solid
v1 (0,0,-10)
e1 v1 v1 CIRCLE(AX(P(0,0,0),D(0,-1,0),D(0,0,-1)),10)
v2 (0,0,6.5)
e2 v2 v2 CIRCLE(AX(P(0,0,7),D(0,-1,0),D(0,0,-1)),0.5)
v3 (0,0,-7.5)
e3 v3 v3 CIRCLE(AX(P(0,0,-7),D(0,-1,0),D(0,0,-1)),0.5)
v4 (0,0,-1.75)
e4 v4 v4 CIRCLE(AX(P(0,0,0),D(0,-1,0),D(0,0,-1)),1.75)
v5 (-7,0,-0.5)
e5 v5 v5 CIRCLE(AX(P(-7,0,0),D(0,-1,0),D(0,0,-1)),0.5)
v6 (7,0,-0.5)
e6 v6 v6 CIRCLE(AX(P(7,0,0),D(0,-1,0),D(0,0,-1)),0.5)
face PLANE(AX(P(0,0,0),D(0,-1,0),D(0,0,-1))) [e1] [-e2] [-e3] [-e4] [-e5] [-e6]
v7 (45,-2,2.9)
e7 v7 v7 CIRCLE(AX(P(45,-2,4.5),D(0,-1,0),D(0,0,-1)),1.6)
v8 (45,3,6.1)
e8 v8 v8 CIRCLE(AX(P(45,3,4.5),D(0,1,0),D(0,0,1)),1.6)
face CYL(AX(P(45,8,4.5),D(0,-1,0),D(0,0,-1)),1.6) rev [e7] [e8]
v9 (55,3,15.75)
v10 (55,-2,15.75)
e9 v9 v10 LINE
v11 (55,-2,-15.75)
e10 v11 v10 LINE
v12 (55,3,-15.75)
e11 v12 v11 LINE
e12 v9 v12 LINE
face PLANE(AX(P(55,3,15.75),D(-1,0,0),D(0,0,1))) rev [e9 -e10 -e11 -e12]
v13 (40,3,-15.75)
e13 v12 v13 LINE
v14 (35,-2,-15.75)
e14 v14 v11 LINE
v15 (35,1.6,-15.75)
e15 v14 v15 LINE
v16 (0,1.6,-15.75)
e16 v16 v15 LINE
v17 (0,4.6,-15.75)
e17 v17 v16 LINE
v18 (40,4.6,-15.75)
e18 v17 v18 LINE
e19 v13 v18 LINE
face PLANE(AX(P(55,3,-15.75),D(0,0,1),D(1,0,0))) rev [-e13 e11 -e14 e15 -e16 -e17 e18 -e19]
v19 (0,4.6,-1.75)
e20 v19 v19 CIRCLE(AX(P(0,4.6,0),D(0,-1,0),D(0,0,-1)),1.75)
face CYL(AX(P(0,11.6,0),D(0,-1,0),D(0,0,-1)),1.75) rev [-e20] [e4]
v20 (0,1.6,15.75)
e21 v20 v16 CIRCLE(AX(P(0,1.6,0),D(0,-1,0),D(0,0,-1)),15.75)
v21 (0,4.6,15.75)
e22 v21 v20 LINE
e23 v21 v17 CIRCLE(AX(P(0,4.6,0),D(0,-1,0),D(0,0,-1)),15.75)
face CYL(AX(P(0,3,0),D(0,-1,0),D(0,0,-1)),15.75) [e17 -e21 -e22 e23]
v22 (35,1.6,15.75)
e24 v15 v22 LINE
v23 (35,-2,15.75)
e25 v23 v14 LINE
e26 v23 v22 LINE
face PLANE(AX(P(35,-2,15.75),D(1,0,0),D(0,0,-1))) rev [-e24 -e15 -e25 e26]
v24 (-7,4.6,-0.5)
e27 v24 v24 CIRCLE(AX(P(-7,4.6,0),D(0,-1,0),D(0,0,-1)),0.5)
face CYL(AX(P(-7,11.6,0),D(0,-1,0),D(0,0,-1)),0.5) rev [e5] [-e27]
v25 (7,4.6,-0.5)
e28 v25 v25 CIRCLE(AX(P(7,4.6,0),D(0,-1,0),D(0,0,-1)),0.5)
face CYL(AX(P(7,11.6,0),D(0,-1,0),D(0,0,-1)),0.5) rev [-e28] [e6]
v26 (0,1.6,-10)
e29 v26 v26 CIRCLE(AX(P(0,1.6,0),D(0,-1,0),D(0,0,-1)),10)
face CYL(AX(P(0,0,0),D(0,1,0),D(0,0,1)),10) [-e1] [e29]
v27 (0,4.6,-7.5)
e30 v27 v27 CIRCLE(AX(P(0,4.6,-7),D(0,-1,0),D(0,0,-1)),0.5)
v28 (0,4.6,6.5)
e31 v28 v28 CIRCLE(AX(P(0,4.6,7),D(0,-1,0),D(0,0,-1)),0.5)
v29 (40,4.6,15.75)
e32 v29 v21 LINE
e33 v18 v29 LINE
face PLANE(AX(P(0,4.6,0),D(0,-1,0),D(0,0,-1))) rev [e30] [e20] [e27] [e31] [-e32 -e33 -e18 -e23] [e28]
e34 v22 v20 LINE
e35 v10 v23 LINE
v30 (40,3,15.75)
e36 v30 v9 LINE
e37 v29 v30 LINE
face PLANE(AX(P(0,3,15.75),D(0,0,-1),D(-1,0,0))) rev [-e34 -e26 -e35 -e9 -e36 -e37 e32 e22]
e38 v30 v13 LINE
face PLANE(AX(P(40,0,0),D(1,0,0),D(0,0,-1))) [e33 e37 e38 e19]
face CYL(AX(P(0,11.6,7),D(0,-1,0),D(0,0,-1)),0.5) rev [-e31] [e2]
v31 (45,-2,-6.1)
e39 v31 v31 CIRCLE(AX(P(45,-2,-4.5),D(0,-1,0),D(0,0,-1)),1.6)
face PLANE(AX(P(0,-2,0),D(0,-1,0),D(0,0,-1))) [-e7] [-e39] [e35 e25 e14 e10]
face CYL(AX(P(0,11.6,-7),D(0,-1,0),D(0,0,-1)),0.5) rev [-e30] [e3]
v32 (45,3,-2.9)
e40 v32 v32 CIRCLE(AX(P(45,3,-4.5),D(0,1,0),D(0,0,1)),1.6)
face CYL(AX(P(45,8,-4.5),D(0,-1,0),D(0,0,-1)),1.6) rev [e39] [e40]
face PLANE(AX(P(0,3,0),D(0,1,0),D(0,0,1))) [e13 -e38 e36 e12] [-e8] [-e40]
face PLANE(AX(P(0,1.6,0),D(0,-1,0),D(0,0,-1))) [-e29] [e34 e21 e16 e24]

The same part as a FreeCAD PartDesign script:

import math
import FreeCAD as App
import Part
import Sketcher
from FreeCAD import Vector
Q = App.Units.Quantity

doc = App.newDocument("Part")
params = doc.addObject("Spreadsheet::Sheet", "Params")
for row, (alias, value) in enumerate([
    ("sketch1_width", "55 mm"),
    ("sketch1_radius", "15.75 mm"),
    ("pad1_length", "3 mm"),
    ("sketch2_width", "20 mm"),
    ("sketch2_height", "31.5 mm"),
    ("pad2_length", "2 mm"),
    ("sketch3_diameter", "1 mm"),
    ("pocket1_length", "10 mm"),
    ("sketch4_diameter", "3.2 mm"),
    ("pocket2_length", "10 mm"),
    ("sketch5_diameter", "3.5 mm"),
    ("pocket3_length", "17 mm"),
    ("sketch6_width", "35 mm"),
    ("sketch6_radius", "15.75 mm"),
    ("pocket4_length", "1.6 mm"),
    ("sketch7_width", "35 mm"),
    ("sketch7_radius", "15.75 mm"),
    ("pad3_length", "3 mm"),
    ("sketch8_width", "1.6 mm"),
    ("sketch8_height", "31.5 mm"),
    ("pad4_length", "3 mm"),
    ("sketch9_diameter", "1 mm"),
    ("sketch9_diameter2", "3.5 mm"),
    ("pocket5_length", "10 mm"),
    ("sketch10_diameter", "20 mm"),
    ("pad5_length", "1.6 mm"),
    ("sketch11_width", "1.6 mm"),
    ("sketch11_height", "31.5 mm"),
    ("pad6_length", "2 mm"),
    ("sketch12_diameter", "1 mm"),
    ("sketch12_diameter2", "3.5 mm"),
    ("pocket6_length", "12 mm"),
], start=1):
    params.set(f"A{row}", alias)
    params.set(f"B{row}", "=" + value)
    params.setAlias(f"B{row}", alias)

body = doc.addObject("PartDesign::Body", "Body")

# Sketch on XZ plane
sketch1 = body.newObject("Sketcher::SketchObject", "Sketch")
sketch1.AttachmentSupport = (doc.getObject("XZ_Plane"), [""])
sketch1.MapMode = "FlatFace"
sketch1.addGeometry([
    Part.LineSegment(Vector(0, 15.75, 0), Vector(55, 15.75, 0)),
    Part.LineSegment(Vector(55, 15.75, 0), Vector(55, -15.75, 0)),
    Part.LineSegment(Vector(55, -15.75, 0), Vector(0, -15.75, 0)),
    Part.ArcOfCircle(Part.Circle(Vector(0, 0, 0), Vector(0, 0, 1), 15.75), math.radians(90), math.radians(270)),
], False)
sketch1.addConstraint([
    Sketcher.Constraint("Coincident", 0, 2, 1, 1),
    Sketcher.Constraint("Coincident", 1, 2, 2, 1),
    Sketcher.Constraint("Tangent", 2, 2, 3, 2),
    Sketcher.Constraint("Tangent", 3, 1, 0, 1),
    Sketcher.Constraint("Horizontal", 0),
    Sketcher.Constraint("Vertical", 1),
    Sketcher.Constraint("Horizontal", 2),
    Sketcher.Constraint("Coincident", 3, 3, -1, 1),
    Sketcher.Constraint("DistanceX", 0, 1, 0, 2, Q("55 mm")),
    Sketcher.Constraint("Radius", 3, Q("15.75 mm")),
])
sketch1.setExpression("Constraints[8]", "Params.sketch1_width")
sketch1.setExpression("Constraints[9]", "Params.sketch1_radius")
pad1 = body.newObject("PartDesign::Pad", "Pad")
pad1.Profile = sketch1
pad1.setExpression("Length", "Params.pad1_length")
pad1.Reversed = True

# Sketch on XZ plane
sketch2 = body.newObject("Sketcher::SketchObject", "Sketch001")
sketch2.AttachmentSupport = (doc.getObject("XZ_Plane"), [""])
sketch2.MapMode = "FlatFace"
sketch2.addGeometry([
    Part.LineSegment(Vector(35, 15.75, 0), Vector(35, -15.75, 0)),
    Part.LineSegment(Vector(35, -15.75, 0), Vector(55, -15.75, 0)),
    Part.LineSegment(Vector(55, -15.75, 0), Vector(55, 15.75, 0)),
    Part.LineSegment(Vector(55, 15.75, 0), Vector(35, 15.75, 0)),
], False)
sketch2.addConstraint([
    Sketcher.Constraint("Coincident", 0, 2, 1, 1),
    Sketcher.Constraint("Coincident", 1, 2, 2, 1),
    Sketcher.Constraint("Coincident", 2, 2, 3, 1),
    Sketcher.Constraint("Coincident", 3, 2, 0, 1),
    Sketcher.Constraint("Vertical", 0),
    Sketcher.Constraint("Horizontal", 1),
    Sketcher.Constraint("Vertical", 2),
    Sketcher.Constraint("Horizontal", 3),
    Sketcher.Constraint("DistanceX", 1, 1, 1, 2, Q("20 mm")),
    Sketcher.Constraint("DistanceY", 0, 2, 0, 1, Q("31.5 mm")),
    Sketcher.Constraint("DistanceX", -1, 1, 0, 2, Q("35 mm")),
    Sketcher.Constraint("DistanceY", 0, 2, -1, 1, Q("15.75 mm")),
])
sketch2.setExpression("Constraints[8]", "Params.sketch2_width")
sketch2.setExpression("Constraints[9]", "Params.sketch2_height")
pad2 = body.newObject("PartDesign::Pad", "Pad001")
pad2.Profile = sketch2
pad2.setExpression("Length", "Params.pad2_length")

# Sketch on XZ plane
sketch3 = body.newObject("Sketcher::SketchObject", "Sketch002")
sketch3.AttachmentSupport = (doc.getObject("XZ_Plane"), [""])
sketch3.MapMode = "FlatFace"
sketch3.addGeometry([
    Part.Circle(Vector(0, 7, 0), Vector(0, 0, 1), 0.5),
    Part.Circle(Vector(7, 0, 0), Vector(0, 0, 1), 0.5),
    Part.Circle(Vector(0, -7, 0), Vector(0, 0, 1), 0.5),
    Part.Circle(Vector(-7, 0, 0), Vector(0, 0, 1), 0.5),
], False)
sketch3.addConstraint([
    Sketcher.Constraint("Equal", 0, 1),
    Sketcher.Constraint("Equal", 1, 2),
    Sketcher.Constraint("Equal", 2, 3),
    Sketcher.Constraint("Symmetric", 0, 3, 2, 3, -1, 1),
    Sketcher.Constraint("Symmetric", 1, 3, 3, 3, -1, 1),
    Sketcher.Constraint("PointOnObject", 0, 3, -2),
    Sketcher.Constraint("PointOnObject", 1, 3, -1),
    Sketcher.Constraint("Diameter", 0, Q("1 mm")),
    Sketcher.Constraint("DistanceY", -1, 1, 0, 3, Q("7 mm")),
    Sketcher.Constraint("DistanceX", -1, 1, 1, 3, Q("7 mm")),
])
sketch3.setExpression("Constraints[7]", "Params.sketch3_diameter")
pocket1 = body.newObject("PartDesign::Pocket", "Pocket")
pocket1.Profile = sketch3
pocket1.setExpression("Length", "Params.pocket1_length")

# Sketch on XZ plane
sketch4 = body.newObject("Sketcher::SketchObject", "Sketch003")
sketch4.AttachmentSupport = (doc.getObject("XZ_Plane"), [""])
sketch4.MapMode = "FlatFace"
sketch4.AttachmentOffset = App.Placement(Vector(0, 0, 2), App.Rotation())
sketch4.addGeometry([
    Part.Circle(Vector(45, -4.5, 0), Vector(0, 0, 1), 1.6),
    Part.Circle(Vector(45, 4.5, 0), Vector(0, 0, 1), 1.6),
], False)
sketch4.addConstraint([
    Sketcher.Constraint("Equal", 0, 1),
    Sketcher.Constraint("Symmetric", 0, 3, 1, 3, -1),
    Sketcher.Constraint("Diameter", 0, Q("3.2 mm")),
    Sketcher.Constraint("DistanceX", -1, 1, 0, 3, Q("45 mm")),
    Sketcher.Constraint("DistanceY", 0, 3, 1, 3, Q("9 mm")),
])
sketch4.setExpression("Constraints[2]", "Params.sketch4_diameter")
pocket2 = body.newObject("PartDesign::Pocket", "Pocket001")
pocket2.Profile = sketch4
pocket2.setExpression("Length", "Params.pocket2_length")

# Sketch on XZ plane
sketch5 = body.newObject("Sketcher::SketchObject", "Sketch004")
sketch5.AttachmentSupport = (doc.getObject("XZ_Plane"), [""])
sketch5.MapMode = "FlatFace"
sketch5.addGeometry(Part.Circle(Vector(0, 0, 0), Vector(0, 0, 1), 1.75), False)
sketch5.addConstraint([
    Sketcher.Constraint("Coincident", 0, 3, -1, 1),
    Sketcher.Constraint("Diameter", 0, Q("3.5 mm")),
])
sketch5.setExpression("Constraints[1]", "Params.sketch5_diameter")
pocket3 = body.newObject("PartDesign::Pocket", "Pocket002")
pocket3.Profile = sketch5
pocket3.setExpression("Length", "Params.pocket3_length")

# Sketch on XZ plane
sketch6 = body.newObject("Sketcher::SketchObject", "Sketch005")
sketch6.AttachmentSupport = (doc.getObject("XZ_Plane"), [""])
sketch6.MapMode = "FlatFace"
sketch6.addGeometry([
    Part.LineSegment(Vector(35, -15.75, 0), Vector(35, 15.75, 0)),
    Part.LineSegment(Vector(35, 15.75, 0), Vector(0, 15.75, 0)),
    Part.ArcOfCircle(Part.Circle(Vector(0, 0, 0), Vector(0, 0, 1), 15.75), math.radians(90), math.radians(270)),
    Part.LineSegment(Vector(0, -15.75, 0), Vector(35, -15.75, 0)),
], False)
sketch6.addConstraint([
    Sketcher.Constraint("Coincident", 0, 2, 1, 1),
    Sketcher.Constraint("Tangent", 1, 2, 2, 1),
    Sketcher.Constraint("Tangent", 2, 2, 3, 1),
    Sketcher.Constraint("Coincident", 3, 2, 0, 1),
    Sketcher.Constraint("Vertical", 0),
    Sketcher.Constraint("Horizontal", 1),
    Sketcher.Constraint("Horizontal", 3),
    Sketcher.Constraint("Coincident", 2, 3, -1, 1),
    Sketcher.Constraint("DistanceX", 1, 2, 1, 1, Q("35 mm")),
    Sketcher.Constraint("Radius", 2, Q("15.75 mm")),
])
sketch6.setExpression("Constraints[8]", "Params.sketch6_width")
sketch6.setExpression("Constraints[9]", "Params.sketch6_radius")
pocket4 = body.newObject("PartDesign::Pocket", "Pocket003")
pocket4.Profile = sketch6
pocket4.setExpression("Length", "Params.pocket4_length")

# Sketch on XZ plane
sketch7 = body.newObject("Sketcher::SketchObject", "Sketch006")
sketch7.AttachmentSupport = (doc.getObject("XZ_Plane"), [""])
sketch7.MapMode = "FlatFace"
sketch7.AttachmentOffset = App.Placement(Vector(0, 0, -1.6), App.Rotation())
sketch7.addGeometry([
    Part.LineSegment(Vector(0, -15.75, 0), Vector(35, -15.75, 0)),
    Part.LineSegment(Vector(35, -15.75, 0), Vector(35, 15.75, 0)),
    Part.LineSegment(Vector(35, 15.75, 0), Vector(0, 15.75, 0)),
    Part.ArcOfCircle(Part.Circle(Vector(0, 0, 0), Vector(0, 0, 1), 15.75), math.radians(90), math.radians(270)),
], False)
sketch7.addConstraint([
    Sketcher.Constraint("Coincident", 0, 2, 1, 1),
    Sketcher.Constraint("Coincident", 1, 2, 2, 1),
    Sketcher.Constraint("Tangent", 2, 2, 3, 1),
    Sketcher.Constraint("Tangent", 3, 2, 0, 1),
    Sketcher.Constraint("Horizontal", 0),
    Sketcher.Constraint("Vertical", 1),
    Sketcher.Constraint("Horizontal", 2),
    Sketcher.Constraint("Coincident", 3, 3, -1, 1),
    Sketcher.Constraint("DistanceX", 0, 1, 0, 2, Q("35 mm")),
    Sketcher.Constraint("Radius", 3, Q("15.75 mm")),
])
sketch7.setExpression("Constraints[8]", "Params.sketch7_width")
sketch7.setExpression("Constraints[9]", "Params.sketch7_radius")
pad3 = body.newObject("PartDesign::Pad", "Pad002")
pad3.Profile = sketch7
pad3.setExpression("Length", "Params.pad3_length")
pad3.Reversed = True

# Sketch on YZ plane
sketch8 = body.newObject("Sketcher::SketchObject", "Sketch007")
sketch8.AttachmentSupport = (doc.getObject("YZ_Plane"), [""])
sketch8.MapMode = "FlatFace"
sketch8.AttachmentOffset = App.Placement(Vector(0, 0, 35), App.Rotation())
sketch8.addGeometry([
    Part.LineSegment(Vector(4.6, 15.75, 0), Vector(3, 15.75, 0)),
    Part.LineSegment(Vector(3, 15.75, 0), Vector(3, -15.75, 0)),
    Part.LineSegment(Vector(3, -15.75, 0), Vector(4.6, -15.75, 0)),
    Part.LineSegment(Vector(4.6, -15.75, 0), Vector(4.6, 15.75, 0)),
], False)
sketch8.addConstraint([
    Sketcher.Constraint("Coincident", 0, 2, 1, 1),
    Sketcher.Constraint("Coincident", 1, 2, 2, 1),
    Sketcher.Constraint("Coincident", 2, 2, 3, 1),
    Sketcher.Constraint("Coincident", 3, 2, 0, 1),
    Sketcher.Constraint("Horizontal", 0),
    Sketcher.Constraint("Vertical", 1),
    Sketcher.Constraint("Horizontal", 2),
    Sketcher.Constraint("Vertical", 3),
    Sketcher.Constraint("DistanceX", 0, 2, 0, 1, Q("1.6 mm")),
    Sketcher.Constraint("DistanceY", 1, 2, 1, 1, Q("31.5 mm")),
    Sketcher.Constraint("DistanceX", -1, 1, 0, 2, Q("3 mm")),
    Sketcher.Constraint("DistanceY", -1, 1, 0, 2, Q("15.75 mm")),
])
sketch8.setExpression("Constraints[8]", "Params.sketch8_width")
sketch8.setExpression("Constraints[9]", "Params.sketch8_height")
pad4 = body.newObject("PartDesign::Pad", "Pad003")
pad4.Profile = sketch8
pad4.setExpression("Length", "Params.pad4_length")

# Sketch on XZ plane
sketch9 = body.newObject("Sketcher::SketchObject", "Sketch008")
sketch9.AttachmentSupport = (doc.getObject("XZ_Plane"), [""])
sketch9.MapMode = "FlatFace"
sketch9.AttachmentOffset = App.Placement(Vector(0, 0, -1.6), App.Rotation())
sketch9.addGeometry([
    Part.Circle(Vector(0, 0, 0), Vector(0, 0, 1), 1.75),  # 0
    Part.Circle(Vector(0, 7, 0), Vector(0, 0, 1), 0.5),  # 1
    Part.Circle(Vector(7, 0, 0), Vector(0, 0, 1), 0.5),  # 2
    Part.Circle(Vector(0, -7, 0), Vector(0, 0, 1), 0.5),  # 3
    Part.Circle(Vector(-7, 0, 0), Vector(0, 0, 1), 0.5),  # 4
], False)
sketch9.addConstraint([
    Sketcher.Constraint("Coincident", 0, 3, -1, 1),
    Sketcher.Constraint("Equal", 1, 2),
    Sketcher.Constraint("Equal", 2, 3),
    Sketcher.Constraint("Equal", 3, 4),
    Sketcher.Constraint("Symmetric", 1, 3, 3, 3, -1, 1),
    Sketcher.Constraint("Symmetric", 2, 3, 4, 3, -1, 1),
    Sketcher.Constraint("PointOnObject", 1, 3, -2),
    Sketcher.Constraint("PointOnObject", 2, 3, -1),
    Sketcher.Constraint("Diameter", 1, Q("1 mm")),
    Sketcher.Constraint("Diameter", 0, Q("3.5 mm")),
    Sketcher.Constraint("DistanceY", -1, 1, 1, 3, Q("7 mm")),
    Sketcher.Constraint("DistanceX", -1, 1, 2, 3, Q("7 mm")),
])
sketch9.setExpression("Constraints[8]", "Params.sketch9_diameter")
sketch9.setExpression("Constraints[9]", "Params.sketch9_diameter2")
pocket5 = body.newObject("PartDesign::Pocket", "Pocket004")
pocket5.Profile = sketch9
pocket5.setExpression("Length", "Params.pocket5_length")

# Sketch on XZ plane
sketch10 = body.newObject("Sketcher::SketchObject", "Sketch009")
sketch10.AttachmentSupport = (doc.getObject("XZ_Plane"), [""])
sketch10.MapMode = "FlatFace"
sketch10.AttachmentOffset = App.Placement(Vector(0, 0, -1.6), App.Rotation())
sketch10.addGeometry(Part.Circle(Vector(0, 0, 0), Vector(0, 0, 1), 10), False)
sketch10.addConstraint([
    Sketcher.Constraint("Coincident", 0, 3, -1, 1),
    Sketcher.Constraint("Diameter", 0, Q("20 mm")),
])
sketch10.setExpression("Constraints[1]", "Params.sketch10_diameter")
pad5 = body.newObject("PartDesign::Pad", "Pad004")
pad5.Profile = sketch10
pad5.setExpression("Length", "Params.pad5_length")

# Sketch on YZ plane
sketch11 = body.newObject("Sketcher::SketchObject", "Sketch010")
sketch11.AttachmentSupport = (doc.getObject("YZ_Plane"), [""])
sketch11.MapMode = "FlatFace"
sketch11.AttachmentOffset = App.Placement(Vector(0, 0, 38), App.Rotation())
sketch11.addGeometry([
    Part.LineSegment(Vector(4.6, 15.75, 0), Vector(3, 15.75, 0)),
    Part.LineSegment(Vector(3, 15.75, 0), Vector(3, -15.75, 0)),
    Part.LineSegment(Vector(3, -15.75, 0), Vector(4.6, -15.75, 0)),
    Part.LineSegment(Vector(4.6, -15.75, 0), Vector(4.6, 15.75, 0)),
], False)
sketch11.addConstraint([
    Sketcher.Constraint("Coincident", 0, 2, 1, 1),
    Sketcher.Constraint("Coincident", 1, 2, 2, 1),
    Sketcher.Constraint("Coincident", 2, 2, 3, 1),
    Sketcher.Constraint("Coincident", 3, 2, 0, 1),
    Sketcher.Constraint("Horizontal", 0),
    Sketcher.Constraint("Vertical", 1),
    Sketcher.Constraint("Horizontal", 2),
    Sketcher.Constraint("Vertical", 3),
    Sketcher.Constraint("DistanceX", 0, 2, 0, 1, Q("1.6 mm")),
    Sketcher.Constraint("DistanceY", 1, 2, 1, 1, Q("31.5 mm")),
    Sketcher.Constraint("DistanceX", -1, 1, 0, 2, Q("3 mm")),
    Sketcher.Constraint("DistanceY", -1, 1, 0, 2, Q("15.75 mm")),
])
sketch11.setExpression("Constraints[8]", "Params.sketch11_width")
sketch11.setExpression("Constraints[9]", "Params.sketch11_height")
pad6 = body.newObject("PartDesign::Pad", "Pad005")
pad6.Profile = sketch11
pad6.setExpression("Length", "Params.pad6_length")

# Sketch on XZ plane
sketch12 = body.newObject("Sketcher::SketchObject", "Sketch011")
sketch12.AttachmentSupport = (doc.getObject("XZ_Plane"), [""])
sketch12.MapMode = "FlatFace"
sketch12.addGeometry([
    Part.Circle(Vector(0, 0, 0), Vector(0, 0, 1), 1.75),  # 0
    Part.Circle(Vector(7, 0, 0), Vector(0, 0, 1), 0.5),  # 1
    Part.Circle(Vector(0, -7, 0), Vector(0, 0, 1), 0.5),  # 2
    Part.Circle(Vector(0, 7, 0), Vector(0, 0, 1), 0.5),  # 3
    Part.Circle(Vector(-7, 0, 0), Vector(0, 0, 1), 0.5),  # 4
], False)
sketch12.addConstraint([
    Sketcher.Constraint("Coincident", 0, 3, -1, 1),
    Sketcher.Constraint("Equal", 1, 2),
    Sketcher.Constraint("Equal", 2, 3),
    Sketcher.Constraint("Equal", 3, 4),
    Sketcher.Constraint("Symmetric", 2, 3, 3, 3, -1, 1),
    Sketcher.Constraint("Symmetric", 1, 3, 4, 3, -1, 1),
    Sketcher.Constraint("PointOnObject", 1, 3, -1),
    Sketcher.Constraint("PointOnObject", 2, 3, -2),
    Sketcher.Constraint("Diameter", 1, Q("1 mm")),
    Sketcher.Constraint("Diameter", 0, Q("3.5 mm")),
    Sketcher.Constraint("DistanceX", -1, 1, 1, 3, Q("7 mm")),
    Sketcher.Constraint("DistanceY", 2, 3, -1, 1, Q("7 mm")),
])
sketch12.setExpression("Constraints[8]", "Params.sketch12_diameter")
sketch12.setExpression("Constraints[9]", "Params.sketch12_diameter2")
pocket6 = body.newObject("PartDesign::Pocket", "Pocket005")
pocket6.Profile = sketch12
pocket6.setExpression("Length", "Params.pocket6_length")

doc.recompute()
